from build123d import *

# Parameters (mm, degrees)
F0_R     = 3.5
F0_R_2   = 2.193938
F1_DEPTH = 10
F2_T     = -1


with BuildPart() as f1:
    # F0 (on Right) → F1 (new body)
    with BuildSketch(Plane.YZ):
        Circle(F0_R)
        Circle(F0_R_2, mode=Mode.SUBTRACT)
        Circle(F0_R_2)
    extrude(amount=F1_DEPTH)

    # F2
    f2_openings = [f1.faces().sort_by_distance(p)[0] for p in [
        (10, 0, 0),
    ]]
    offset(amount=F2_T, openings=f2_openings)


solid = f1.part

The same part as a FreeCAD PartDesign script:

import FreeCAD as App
import Part
import Sketcher
Q = App.Units.Quantity


def faces_at(feature, points):
    """Names of the faces that lie closest to the given points."""
    faces = feature.Shape.Faces
    near = lambda p: min(range(len(faces)), key=lambda i: faces[i].distToShape(Part.Vertex(*p))[0])
    return sorted({f"Face{near(p) + 1}" for p in points})

doc = App.newDocument("Part")
body = doc.addObject("PartDesign::Body", "Body")

sketch1 = doc.addObject("Sketcher::SketchObject", "Sketch")
body.addObject(sketch1)
sketch1.AttachmentSupport = (doc.YZ_Plane, [""])
sketch1.MapMode = "FlatFace"
sketch1.addGeometry(Part.Circle(App.Vector(0, 0, 0), App.Vector(0, 0, 1), 3.5), False)
sketch1.addConstraint([
    Sketcher.Constraint("Coincident", 0, 3, -1, 1),
    Sketcher.Constraint("Diameter", 0, Q("7 mm")),
])
pad1 = doc.addObject("PartDesign::Pad", "Pad")
body.addObject(pad1)
pad1.Profile = sketch1
pad1.Length = 10
doc.recompute()

thickness = doc.addObject("PartDesign::Thickness", "Thickness")
body.addObject(thickness)
thickness.Base = (pad1, faces_at(pad1, [(10, 0, 0)]))
thickness.Value = 1
thickness.Reversed = True
thickness.Join = "Arc"

doc.recompute()
